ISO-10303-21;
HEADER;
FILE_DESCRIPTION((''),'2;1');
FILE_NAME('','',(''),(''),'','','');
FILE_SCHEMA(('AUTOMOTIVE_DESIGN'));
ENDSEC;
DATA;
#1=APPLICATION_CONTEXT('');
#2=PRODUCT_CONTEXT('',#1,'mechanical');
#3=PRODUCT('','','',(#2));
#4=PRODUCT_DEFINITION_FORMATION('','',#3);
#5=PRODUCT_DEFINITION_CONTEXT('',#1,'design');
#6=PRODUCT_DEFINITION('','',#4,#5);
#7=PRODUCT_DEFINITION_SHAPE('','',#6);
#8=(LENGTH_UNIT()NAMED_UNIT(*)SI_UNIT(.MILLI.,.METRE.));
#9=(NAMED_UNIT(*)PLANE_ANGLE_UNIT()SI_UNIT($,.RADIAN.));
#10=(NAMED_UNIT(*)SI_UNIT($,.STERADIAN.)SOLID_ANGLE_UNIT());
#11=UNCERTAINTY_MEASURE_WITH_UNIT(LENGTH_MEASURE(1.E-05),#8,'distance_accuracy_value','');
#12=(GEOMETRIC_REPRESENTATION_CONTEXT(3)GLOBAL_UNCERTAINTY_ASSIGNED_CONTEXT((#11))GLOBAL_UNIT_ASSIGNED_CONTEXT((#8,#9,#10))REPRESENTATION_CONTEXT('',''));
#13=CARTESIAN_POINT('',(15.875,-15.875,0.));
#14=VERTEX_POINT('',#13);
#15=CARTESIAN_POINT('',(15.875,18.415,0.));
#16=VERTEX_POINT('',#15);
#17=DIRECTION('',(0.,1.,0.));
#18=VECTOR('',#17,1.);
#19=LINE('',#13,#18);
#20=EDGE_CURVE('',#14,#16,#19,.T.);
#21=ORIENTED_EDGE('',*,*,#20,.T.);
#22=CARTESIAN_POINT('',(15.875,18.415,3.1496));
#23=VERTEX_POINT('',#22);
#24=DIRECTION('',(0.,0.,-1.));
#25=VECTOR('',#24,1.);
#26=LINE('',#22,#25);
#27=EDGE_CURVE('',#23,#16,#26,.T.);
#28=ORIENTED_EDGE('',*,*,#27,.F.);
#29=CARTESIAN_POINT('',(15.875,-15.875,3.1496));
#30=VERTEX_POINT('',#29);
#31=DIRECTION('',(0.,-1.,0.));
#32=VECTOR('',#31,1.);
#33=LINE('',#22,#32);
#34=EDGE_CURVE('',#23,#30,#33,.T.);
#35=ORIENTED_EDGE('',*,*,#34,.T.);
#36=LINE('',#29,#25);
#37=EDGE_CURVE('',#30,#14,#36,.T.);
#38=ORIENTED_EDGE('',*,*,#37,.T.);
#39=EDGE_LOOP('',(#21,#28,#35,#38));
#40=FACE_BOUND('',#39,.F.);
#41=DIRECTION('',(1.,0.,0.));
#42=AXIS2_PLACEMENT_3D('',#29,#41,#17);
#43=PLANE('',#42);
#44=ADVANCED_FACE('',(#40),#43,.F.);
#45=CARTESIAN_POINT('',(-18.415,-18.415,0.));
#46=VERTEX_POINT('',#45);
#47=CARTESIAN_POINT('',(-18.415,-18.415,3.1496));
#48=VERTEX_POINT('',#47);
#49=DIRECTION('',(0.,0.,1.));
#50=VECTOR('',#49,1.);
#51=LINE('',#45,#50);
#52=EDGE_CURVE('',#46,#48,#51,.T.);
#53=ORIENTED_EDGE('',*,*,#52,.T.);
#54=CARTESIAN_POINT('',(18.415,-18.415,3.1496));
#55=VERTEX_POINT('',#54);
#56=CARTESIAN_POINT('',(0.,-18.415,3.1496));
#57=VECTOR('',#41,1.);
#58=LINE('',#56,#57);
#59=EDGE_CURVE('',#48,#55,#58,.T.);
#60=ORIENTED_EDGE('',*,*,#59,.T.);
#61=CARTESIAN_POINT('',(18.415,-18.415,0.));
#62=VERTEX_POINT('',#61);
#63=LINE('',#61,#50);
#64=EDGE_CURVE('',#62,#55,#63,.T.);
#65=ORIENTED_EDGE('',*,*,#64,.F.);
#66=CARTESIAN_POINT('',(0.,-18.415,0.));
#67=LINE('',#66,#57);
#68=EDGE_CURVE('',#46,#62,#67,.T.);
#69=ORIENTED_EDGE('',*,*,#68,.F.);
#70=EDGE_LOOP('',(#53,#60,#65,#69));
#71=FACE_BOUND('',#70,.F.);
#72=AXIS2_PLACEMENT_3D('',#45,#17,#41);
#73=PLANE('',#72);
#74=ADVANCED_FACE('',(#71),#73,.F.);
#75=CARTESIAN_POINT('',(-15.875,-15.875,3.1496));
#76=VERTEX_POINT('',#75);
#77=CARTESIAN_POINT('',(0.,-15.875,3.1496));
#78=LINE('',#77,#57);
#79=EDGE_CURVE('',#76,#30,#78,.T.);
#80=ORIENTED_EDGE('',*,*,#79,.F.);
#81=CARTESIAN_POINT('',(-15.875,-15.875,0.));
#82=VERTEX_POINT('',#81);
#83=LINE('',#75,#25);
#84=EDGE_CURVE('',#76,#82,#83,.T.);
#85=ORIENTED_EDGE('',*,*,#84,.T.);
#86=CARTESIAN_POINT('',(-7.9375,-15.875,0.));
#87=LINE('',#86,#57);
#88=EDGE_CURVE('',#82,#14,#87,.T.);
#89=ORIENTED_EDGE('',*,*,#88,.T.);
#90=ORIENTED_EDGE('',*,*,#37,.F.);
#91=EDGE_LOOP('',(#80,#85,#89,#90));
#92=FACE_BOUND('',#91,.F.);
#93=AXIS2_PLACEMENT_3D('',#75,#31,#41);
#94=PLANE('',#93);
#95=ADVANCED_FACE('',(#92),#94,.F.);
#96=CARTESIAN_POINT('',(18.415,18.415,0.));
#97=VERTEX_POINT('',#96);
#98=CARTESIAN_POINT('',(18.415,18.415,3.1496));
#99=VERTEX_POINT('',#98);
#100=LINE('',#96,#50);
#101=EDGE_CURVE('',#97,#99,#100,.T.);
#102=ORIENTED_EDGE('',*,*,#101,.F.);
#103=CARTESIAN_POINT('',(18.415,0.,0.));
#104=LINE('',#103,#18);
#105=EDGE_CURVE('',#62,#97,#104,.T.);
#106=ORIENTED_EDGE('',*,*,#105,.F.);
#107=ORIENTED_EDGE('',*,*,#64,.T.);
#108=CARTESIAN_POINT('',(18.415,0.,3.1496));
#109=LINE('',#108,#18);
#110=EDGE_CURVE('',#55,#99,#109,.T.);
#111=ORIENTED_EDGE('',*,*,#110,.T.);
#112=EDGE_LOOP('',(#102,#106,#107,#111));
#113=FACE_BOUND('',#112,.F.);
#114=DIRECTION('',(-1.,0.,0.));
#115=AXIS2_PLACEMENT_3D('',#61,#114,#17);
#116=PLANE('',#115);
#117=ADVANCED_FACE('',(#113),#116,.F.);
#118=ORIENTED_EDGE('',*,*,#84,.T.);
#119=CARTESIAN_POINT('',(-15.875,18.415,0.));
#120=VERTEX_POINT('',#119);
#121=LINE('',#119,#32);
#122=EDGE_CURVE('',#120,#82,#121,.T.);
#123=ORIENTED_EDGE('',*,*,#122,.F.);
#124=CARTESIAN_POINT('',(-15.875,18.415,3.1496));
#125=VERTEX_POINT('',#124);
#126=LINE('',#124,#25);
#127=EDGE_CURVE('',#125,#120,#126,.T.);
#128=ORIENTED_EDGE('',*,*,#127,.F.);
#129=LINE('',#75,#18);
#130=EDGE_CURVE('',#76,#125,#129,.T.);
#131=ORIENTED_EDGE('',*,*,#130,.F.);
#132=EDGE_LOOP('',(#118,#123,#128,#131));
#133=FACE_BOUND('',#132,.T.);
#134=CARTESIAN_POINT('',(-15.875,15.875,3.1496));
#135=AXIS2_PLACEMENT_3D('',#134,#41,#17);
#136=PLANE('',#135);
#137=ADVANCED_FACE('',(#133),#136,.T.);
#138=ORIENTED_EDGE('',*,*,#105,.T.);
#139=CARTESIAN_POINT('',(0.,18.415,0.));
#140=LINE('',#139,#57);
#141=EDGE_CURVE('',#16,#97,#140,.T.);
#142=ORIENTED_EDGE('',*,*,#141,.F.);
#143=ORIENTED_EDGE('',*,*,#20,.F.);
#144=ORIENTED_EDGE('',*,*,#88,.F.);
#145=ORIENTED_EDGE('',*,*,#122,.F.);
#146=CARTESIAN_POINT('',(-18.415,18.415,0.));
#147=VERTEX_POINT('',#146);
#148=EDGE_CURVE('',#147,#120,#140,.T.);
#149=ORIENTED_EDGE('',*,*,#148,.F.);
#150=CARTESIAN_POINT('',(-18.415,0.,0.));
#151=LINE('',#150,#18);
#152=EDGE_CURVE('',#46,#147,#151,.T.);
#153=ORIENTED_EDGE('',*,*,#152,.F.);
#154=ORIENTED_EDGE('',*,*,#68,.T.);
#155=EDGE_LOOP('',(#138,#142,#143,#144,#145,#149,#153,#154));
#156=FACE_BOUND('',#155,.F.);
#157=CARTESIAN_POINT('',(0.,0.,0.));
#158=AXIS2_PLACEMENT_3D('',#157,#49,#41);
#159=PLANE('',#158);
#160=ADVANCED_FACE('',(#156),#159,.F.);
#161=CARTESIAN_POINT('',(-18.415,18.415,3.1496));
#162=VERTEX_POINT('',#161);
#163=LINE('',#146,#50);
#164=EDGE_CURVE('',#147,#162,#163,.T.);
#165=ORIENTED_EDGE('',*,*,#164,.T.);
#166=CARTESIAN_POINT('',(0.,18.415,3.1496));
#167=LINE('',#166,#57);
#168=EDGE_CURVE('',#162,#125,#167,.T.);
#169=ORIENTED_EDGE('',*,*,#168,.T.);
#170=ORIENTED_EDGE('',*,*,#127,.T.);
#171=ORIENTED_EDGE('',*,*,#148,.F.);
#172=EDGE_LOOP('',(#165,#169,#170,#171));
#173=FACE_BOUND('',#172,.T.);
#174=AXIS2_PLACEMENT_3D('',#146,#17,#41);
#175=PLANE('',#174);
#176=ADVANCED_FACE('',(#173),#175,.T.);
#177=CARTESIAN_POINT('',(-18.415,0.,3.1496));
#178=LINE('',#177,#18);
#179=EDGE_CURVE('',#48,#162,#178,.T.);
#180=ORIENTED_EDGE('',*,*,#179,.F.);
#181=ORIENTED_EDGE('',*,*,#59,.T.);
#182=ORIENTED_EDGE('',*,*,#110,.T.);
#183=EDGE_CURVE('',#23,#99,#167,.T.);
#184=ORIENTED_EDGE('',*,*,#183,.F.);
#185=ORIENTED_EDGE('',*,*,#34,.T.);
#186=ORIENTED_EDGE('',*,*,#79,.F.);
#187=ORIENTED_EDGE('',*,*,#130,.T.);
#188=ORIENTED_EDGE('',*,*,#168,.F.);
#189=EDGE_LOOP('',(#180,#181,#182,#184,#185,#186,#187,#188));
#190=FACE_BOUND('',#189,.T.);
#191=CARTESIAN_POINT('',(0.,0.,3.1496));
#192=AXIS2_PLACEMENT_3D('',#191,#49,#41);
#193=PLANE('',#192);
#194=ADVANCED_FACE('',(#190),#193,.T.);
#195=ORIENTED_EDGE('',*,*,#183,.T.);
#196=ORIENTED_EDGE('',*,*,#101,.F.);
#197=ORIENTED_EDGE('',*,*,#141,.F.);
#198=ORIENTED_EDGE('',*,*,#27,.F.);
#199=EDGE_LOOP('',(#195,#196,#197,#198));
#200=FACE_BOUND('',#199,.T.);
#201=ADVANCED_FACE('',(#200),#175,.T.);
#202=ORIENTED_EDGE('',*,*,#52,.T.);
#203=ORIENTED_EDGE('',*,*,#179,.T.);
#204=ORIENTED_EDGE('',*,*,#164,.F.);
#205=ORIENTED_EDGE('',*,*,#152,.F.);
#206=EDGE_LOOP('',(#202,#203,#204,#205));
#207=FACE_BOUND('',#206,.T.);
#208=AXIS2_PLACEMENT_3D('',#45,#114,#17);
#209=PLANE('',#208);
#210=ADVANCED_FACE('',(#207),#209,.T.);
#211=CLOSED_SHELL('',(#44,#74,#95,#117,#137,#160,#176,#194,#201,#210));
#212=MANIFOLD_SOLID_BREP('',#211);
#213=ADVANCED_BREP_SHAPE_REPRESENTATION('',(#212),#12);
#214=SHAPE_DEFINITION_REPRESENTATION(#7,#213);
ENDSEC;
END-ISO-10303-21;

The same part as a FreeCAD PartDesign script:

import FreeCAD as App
import Part
import Sketcher

V = App.Vector
Q = App.Units.Quantity


def add_polygon(sketch, points):
    """Adds a closed chain of lines whose ends are joined by coincident constraints."""
    first, n = sketch.GeometryCount, len(points)
    for a, b in zip(points, points[1:] + points[:1]):
        sketch.addGeometry(Part.LineSegment(App.Vector(*a, 0), App.Vector(*b, 0)), False)
    for i in range(n):
        sketch.addConstraint(Sketcher.Constraint("Coincident", first + i, 2, first + (i + 1) % n, 1))

doc = App.newDocument("Part")
body = doc.addObject("PartDesign::Body", "Body")

# Sketch on XY plane
sketch1 = doc.addObject("Sketcher::SketchObject", "Sketch")
body.addObject(sketch1)
sketch1.AttachmentSupport = (doc.XY_Plane, [""])
sketch1.MapMode = "FlatFace"
add_polygon(sketch1, [(-18, 18), (-18, -18), (18, -18), (18, 18)])  # lines 0-3
sketch1.addConstraint(Sketcher.Constraint("Vertical", 0))
sketch1.addConstraint(Sketcher.Constraint("Horizontal", 1))
sketch1.addConstraint(Sketcher.Constraint("Vertical", 2))
sketch1.addConstraint(Sketcher.Constraint("Horizontal", 3))
sketch1.addConstraint(Sketcher.Constraint("Symmetric", 0, 2, 2, 2, -1, 1))
sketch1.addConstraint(Sketcher.Constraint("Equal", 3, 0))
sketch1.addConstraint(Sketcher.Constraint("DistanceX", 1, 1, 1, 2, Q("1.45 in")))
pad1 = doc.addObject("PartDesign::Pad", "Pad")
body.addObject(pad1)
pad1.Profile = sketch1
pad1.Length = Q("0.124 in")

# Sketch on XY plane
sketch2 = doc.addObject("Sketcher::SketchObject", "Sketch001")
body.addObject(sketch2)
sketch2.AttachmentSupport = (doc.XY_Plane, [""])
sketch2.MapMode = "FlatFace"
sketch2.AttachmentOffset = App.Placement(V(0, 0, 0.124 * 25.4), App.Rotation())
add_polygon(sketch2, [(-16, 16), (-16, -16), (16, -16), (16, 16)])  # lines 0-3
sketch2.addConstraint(Sketcher.Constraint("Vertical", 0))
sketch2.addConstraint(Sketcher.Constraint("Horizontal", 1))
sketch2.addConstraint(Sketcher.Constraint("Vertical", 2))
sketch2.addConstraint(Sketcher.Constraint("Horizontal", 3))
sketch2.addConstraint(Sketcher.Constraint("Symmetric", 0, 2, 2, 2, -1, 1))
sketch2.addConstraint(Sketcher.Constraint("Equal", 3, 0))
sketch2.addConstraint(Sketcher.Constraint("DistanceX", 1, 1, 1, 2, Q("1.25 in")))
pocket1 = doc.addObject("PartDesign::Pocket", "Pocket")
body.addObject(pocket1)
pocket1.Profile = sketch2
pocket1.Length = Q("1 in")

# Sketch on XY plane
sketch3 = doc.addObject("Sketcher::SketchObject", "Sketch002")
body.addObject(sketch3)
sketch3.AttachmentSupport = (doc.XY_Plane, [""])
sketch3.MapMode = "FlatFace"
sketch3.AttachmentOffset = App.Placement(V(0, 0, 0.124 * 25.4), App.Rotation())
add_polygon(sketch3, [(-15.9, 18.4), (-15.9, 15.9), (15.9, 15.9), (15.9, 18.4)])  # lines 0-3
sketch3.addConstraint(Sketcher.Constraint("Vertical", 0))
sketch3.addConstraint(Sketcher.Constraint("Horizontal", 1))
sketch3.addConstraint(Sketcher.Constraint("Vertical", 2))
sketch3.addConstraint(Sketcher.Constraint("Horizontal", 3))
sketch3.addConstraint(Sketcher.Constraint("DistanceY", 0, 2, 0, 1, Q("0.1 in")))
sketch3.addConstraint(Sketcher.Constraint("DistanceX", 1, 1, 1, 2, Q("1.25 in")))
sketch3.addConstraint(Sketcher.Constraint("DistanceX", 0, 2, -1, 1, Q("0.625 in")))
sketch3.addConstraint(Sketcher.Constraint("DistanceY", -1, 1, 0, 2, Q("0.625 in")))
pocket2 = doc.addObject("PartDesign::Pocket", "Pocket001")
body.addObject(pocket2)
pocket2.Profile = sketch3
pocket2.Length = Q("1 in")

doc.recompute()
